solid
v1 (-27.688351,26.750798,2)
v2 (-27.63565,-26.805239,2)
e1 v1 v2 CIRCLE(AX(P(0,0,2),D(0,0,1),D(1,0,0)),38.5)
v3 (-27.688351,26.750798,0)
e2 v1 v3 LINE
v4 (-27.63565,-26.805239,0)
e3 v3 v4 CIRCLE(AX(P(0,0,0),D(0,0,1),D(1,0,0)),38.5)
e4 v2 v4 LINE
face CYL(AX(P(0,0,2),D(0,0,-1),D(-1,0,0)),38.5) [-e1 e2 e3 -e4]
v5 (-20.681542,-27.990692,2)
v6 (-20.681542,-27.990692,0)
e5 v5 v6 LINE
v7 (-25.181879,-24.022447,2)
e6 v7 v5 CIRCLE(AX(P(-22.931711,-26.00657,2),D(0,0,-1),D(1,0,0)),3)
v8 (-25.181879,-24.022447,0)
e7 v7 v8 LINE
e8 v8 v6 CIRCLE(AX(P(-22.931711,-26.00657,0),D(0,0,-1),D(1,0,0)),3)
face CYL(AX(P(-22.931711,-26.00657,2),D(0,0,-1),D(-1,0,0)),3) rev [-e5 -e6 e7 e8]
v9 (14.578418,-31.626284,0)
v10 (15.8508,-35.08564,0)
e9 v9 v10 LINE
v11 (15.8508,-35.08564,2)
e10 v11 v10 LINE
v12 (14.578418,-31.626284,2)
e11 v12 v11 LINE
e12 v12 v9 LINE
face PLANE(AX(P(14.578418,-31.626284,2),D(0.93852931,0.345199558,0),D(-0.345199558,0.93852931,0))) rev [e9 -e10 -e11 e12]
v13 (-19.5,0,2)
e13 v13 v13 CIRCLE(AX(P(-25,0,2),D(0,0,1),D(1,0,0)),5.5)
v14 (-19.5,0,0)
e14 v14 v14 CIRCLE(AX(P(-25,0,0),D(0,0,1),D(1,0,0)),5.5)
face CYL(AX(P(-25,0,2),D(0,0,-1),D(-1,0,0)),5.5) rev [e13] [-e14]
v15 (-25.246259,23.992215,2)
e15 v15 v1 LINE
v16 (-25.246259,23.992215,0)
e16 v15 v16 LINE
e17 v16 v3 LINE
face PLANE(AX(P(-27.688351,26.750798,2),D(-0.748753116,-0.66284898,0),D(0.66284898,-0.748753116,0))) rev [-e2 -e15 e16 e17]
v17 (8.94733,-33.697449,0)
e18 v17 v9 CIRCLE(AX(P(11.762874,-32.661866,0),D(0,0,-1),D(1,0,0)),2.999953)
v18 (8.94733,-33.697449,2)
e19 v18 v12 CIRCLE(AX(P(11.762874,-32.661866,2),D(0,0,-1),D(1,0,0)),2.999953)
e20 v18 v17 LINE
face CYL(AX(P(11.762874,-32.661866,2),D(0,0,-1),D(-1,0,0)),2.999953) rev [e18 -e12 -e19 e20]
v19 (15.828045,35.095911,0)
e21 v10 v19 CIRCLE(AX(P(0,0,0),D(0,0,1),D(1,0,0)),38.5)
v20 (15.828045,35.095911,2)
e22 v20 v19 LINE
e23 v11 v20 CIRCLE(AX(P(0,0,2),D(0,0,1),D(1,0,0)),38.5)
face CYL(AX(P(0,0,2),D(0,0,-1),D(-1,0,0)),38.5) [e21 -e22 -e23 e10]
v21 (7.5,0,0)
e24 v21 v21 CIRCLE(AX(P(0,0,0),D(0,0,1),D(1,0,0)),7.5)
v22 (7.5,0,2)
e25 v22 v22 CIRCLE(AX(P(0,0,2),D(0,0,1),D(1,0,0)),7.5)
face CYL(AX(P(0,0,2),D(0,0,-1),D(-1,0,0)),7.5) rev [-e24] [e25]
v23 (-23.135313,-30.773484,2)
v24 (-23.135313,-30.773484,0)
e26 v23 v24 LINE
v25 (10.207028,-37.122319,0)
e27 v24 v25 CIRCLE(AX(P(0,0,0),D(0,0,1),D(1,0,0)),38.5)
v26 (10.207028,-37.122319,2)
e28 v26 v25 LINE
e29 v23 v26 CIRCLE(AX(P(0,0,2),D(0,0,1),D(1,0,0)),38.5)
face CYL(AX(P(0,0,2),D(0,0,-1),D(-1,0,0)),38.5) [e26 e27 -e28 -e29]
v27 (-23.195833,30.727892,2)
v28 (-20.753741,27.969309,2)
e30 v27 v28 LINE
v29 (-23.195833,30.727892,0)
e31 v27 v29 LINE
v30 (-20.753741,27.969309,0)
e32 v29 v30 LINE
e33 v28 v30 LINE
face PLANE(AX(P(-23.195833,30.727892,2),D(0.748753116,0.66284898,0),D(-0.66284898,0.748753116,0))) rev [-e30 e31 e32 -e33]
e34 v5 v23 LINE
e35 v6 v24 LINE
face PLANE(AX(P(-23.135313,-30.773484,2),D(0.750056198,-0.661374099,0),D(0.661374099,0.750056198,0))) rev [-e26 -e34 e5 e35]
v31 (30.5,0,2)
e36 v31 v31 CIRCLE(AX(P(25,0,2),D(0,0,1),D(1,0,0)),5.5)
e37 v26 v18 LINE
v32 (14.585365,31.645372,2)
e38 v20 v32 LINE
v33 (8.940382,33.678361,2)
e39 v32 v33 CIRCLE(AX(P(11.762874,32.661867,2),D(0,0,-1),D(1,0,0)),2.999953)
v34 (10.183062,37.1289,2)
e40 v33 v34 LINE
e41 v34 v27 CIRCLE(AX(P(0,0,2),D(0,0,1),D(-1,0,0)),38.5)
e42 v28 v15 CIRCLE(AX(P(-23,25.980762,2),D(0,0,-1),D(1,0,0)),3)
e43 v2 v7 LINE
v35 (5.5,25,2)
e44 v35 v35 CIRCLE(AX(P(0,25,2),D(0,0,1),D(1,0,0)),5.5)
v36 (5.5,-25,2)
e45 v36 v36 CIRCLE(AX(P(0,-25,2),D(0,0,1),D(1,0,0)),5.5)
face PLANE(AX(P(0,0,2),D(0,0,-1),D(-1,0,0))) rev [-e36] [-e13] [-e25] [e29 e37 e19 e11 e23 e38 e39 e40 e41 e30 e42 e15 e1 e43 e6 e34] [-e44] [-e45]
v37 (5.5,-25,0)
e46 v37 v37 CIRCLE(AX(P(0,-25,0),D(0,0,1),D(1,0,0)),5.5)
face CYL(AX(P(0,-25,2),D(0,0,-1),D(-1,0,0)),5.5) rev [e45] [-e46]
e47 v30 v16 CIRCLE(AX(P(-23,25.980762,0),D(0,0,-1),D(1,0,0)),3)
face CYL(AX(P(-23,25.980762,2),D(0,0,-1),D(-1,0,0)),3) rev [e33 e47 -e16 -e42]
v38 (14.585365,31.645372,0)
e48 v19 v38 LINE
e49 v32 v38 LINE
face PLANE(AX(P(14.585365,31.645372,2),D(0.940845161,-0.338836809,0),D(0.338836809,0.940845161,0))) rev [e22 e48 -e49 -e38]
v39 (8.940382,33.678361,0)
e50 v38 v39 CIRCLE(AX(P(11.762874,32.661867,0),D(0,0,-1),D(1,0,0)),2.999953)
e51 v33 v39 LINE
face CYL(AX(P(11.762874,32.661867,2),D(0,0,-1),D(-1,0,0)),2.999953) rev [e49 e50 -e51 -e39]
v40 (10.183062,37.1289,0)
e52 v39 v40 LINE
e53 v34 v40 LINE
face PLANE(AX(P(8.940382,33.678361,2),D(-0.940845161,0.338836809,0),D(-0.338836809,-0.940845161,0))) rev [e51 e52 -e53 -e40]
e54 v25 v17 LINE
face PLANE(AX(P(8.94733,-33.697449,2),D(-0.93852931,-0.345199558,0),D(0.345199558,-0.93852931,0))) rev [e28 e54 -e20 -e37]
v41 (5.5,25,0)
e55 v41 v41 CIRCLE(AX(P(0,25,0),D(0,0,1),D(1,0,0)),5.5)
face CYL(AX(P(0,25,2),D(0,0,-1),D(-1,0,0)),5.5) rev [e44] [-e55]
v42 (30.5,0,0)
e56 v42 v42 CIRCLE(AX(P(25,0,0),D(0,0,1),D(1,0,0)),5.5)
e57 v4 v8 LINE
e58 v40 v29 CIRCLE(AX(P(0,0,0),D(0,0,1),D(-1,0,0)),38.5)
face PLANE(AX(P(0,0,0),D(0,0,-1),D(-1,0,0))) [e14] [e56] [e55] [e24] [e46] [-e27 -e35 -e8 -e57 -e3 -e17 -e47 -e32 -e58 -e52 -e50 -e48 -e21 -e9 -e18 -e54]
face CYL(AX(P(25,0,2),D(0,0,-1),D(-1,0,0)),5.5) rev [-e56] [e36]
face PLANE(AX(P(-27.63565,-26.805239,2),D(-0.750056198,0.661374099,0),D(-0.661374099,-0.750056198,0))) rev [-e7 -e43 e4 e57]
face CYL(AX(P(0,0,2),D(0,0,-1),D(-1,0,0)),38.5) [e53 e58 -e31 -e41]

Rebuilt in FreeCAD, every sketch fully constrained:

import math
import FreeCAD as App
import Part
import Sketcher
Q = App.Units.Quantity

doc = App.newDocument("Part")
body = doc.addObject("PartDesign::Body", "Body")

# Sketch on XY plane
sketch1 = body.newObject("Sketcher::SketchObject", "Sketch")
sketch1.AttachmentSupport = (doc.getObject("XY_Plane"), [""])
sketch1.MapMode = "FlatFace"
sketch1.addGeometry([
    Part.LineSegment(App.Vector(10.2, -37.1, 0), App.Vector(8.9, -33.7, 0)),  # 0
    Part.ArcOfCircle(Part.Circle(App.Vector(11.8, -32.7, 0), App.Vector(0, 0, 1), 3), math.radians(20), math.radians(200)),  # 1
    Part.LineSegment(App.Vector(14.6, -31.6, 0), App.Vector(15.9, -35.1, 0)),  # 2
    Part.ArcOfCircle(Part.Circle(App.Vector(0, 0, 0), App.Vector(0, 0, 1), 38.5), math.radians(-66), math.radians(66)),  # 3
    Part.LineSegment(App.Vector(15.8, 35.1, 0), App.Vector(14.6, 31.6, 0)),  # 4
    Part.ArcOfCircle(Part.Circle(App.Vector(11.8, 32.7, 0), App.Vector(0, 0, 1), 3), math.radians(160), math.radians(340)),  # 5
    Part.LineSegment(App.Vector(8.9, 33.7, 0), App.Vector(10.2, 37.1, 0)),  # 6
    Part.ArcOfCircle(Part.Circle(App.Vector(0, 0, 0), App.Vector(0, 0, 1), 38.5), math.radians(75), math.radians(127)),  # 7
    Part.LineSegment(App.Vector(-23.2, 30.7, 0), App.Vector(-20.8, 28, 0)),  # 8
    Part.ArcOfCircle(Part.Circle(App.Vector(-23, 26, 0), App.Vector(0, 0, 1), 3), math.radians(-138), math.radians(42)),  # 9
    Part.LineSegment(App.Vector(-25.2, 24, 0), App.Vector(-27.7, 26.8, 0)),  # 10
    Part.ArcOfCircle(Part.Circle(App.Vector(0, 0, 0), App.Vector(0, 0, 1), 38.5), math.radians(136), math.radians(224)),  # 11
    Part.LineSegment(App.Vector(-27.6, -26.8, 0), App.Vector(-25.2, -24, 0)),  # 12
    Part.ArcOfCircle(Part.Circle(App.Vector(-22.9, -26, 0), App.Vector(0, 0, 1), 3), math.radians(-41), math.radians(139)),  # 13
    Part.LineSegment(App.Vector(-20.7, -28, 0), App.Vector(-23.1, -30.8, 0)),  # 14
    Part.ArcOfCircle(Part.Circle(App.Vector(0, 0, 0), App.Vector(0, 0, 1), 38.5), math.radians(-127), math.radians(-75)),  # 15
    Part.Circle(App.Vector(0, -25, 0), App.Vector(0, 0, 1), 5.5),  # 16
    Part.Circle(App.Vector(25, 0, 0), App.Vector(0, 0, 1), 5.5),  # 17
    Part.Circle(App.Vector(0, 0, 0), App.Vector(0, 0, 1), 7.5),  # 18
    Part.Circle(App.Vector(-25, 0, 0), App.Vector(0, 0, 1), 5.5),  # 19
    Part.Circle(App.Vector(0, 25, 0), App.Vector(0, 0, 1), 5.5),  # 20
], False)
sketch1.addConstraint([
    Sketcher.Constraint("Tangent", 0, 2, 1, 2),
    Sketcher.Constraint("Tangent", 1, 1, 2, 1),
    Sketcher.Constraint("Coincident", 2, 2, 3, 1),
    Sketcher.Constraint("Coincident", 3, 2, 4, 1),
    Sketcher.Constraint("Tangent", 4, 2, 5, 2),
    Sketcher.Constraint("Tangent", 5, 1, 6, 1),
    Sketcher.Constraint("Coincident", 6, 2, 7, 1),
    Sketcher.Constraint("Coincident", 7, 2, 8, 1),
    Sketcher.Constraint("Tangent", 8, 2, 9, 2),
    Sketcher.Constraint("Tangent", 9, 1, 10, 1),
    Sketcher.Constraint("Coincident", 10, 2, 11, 1),
    Sketcher.Constraint("Coincident", 11, 2, 12, 1),
    Sketcher.Constraint("Tangent", 12, 2, 13, 2),
    Sketcher.Constraint("Tangent", 13, 1, 14, 1),
    Sketcher.Constraint("Coincident", 14, 2, 15, 1),
    Sketcher.Constraint("Coincident", 15, 2, 0, 1),
    Sketcher.Constraint("Coincident", 3, 3, -1, 1),
    Sketcher.Constraint("Coincident", 7, 3, -1, 1),
    Sketcher.Constraint("Coincident", 11, 3, -1, 1),
    Sketcher.Constraint("Coincident", 15, 3, -1, 1),
    Sketcher.Constraint("Coincident", 18, 3, -1, 1),
    Sketcher.Constraint("Equal", 1, 5),
    Sketcher.Constraint("Equal", 3, 7),
    Sketcher.Constraint("Equal", 7, 11),
    Sketcher.Constraint("Equal", 9, 13),
    Sketcher.Constraint("Equal", 11, 15),
    Sketcher.Constraint("Equal", 16, 17),
    Sketcher.Constraint("Equal", 17, 19),
    Sketcher.Constraint("Equal", 19, 20),
    Sketcher.Constraint("Symmetric", 17, 3, 19, 3, -1, 1),
    Sketcher.Constraint("Symmetric", 16, 3, 20, 3, -1, 1),
    Sketcher.Constraint("Symmetric", 1, 3, 5, 3, -1),
    Sketcher.Constraint("PointOnObject", 16, 3, -2),
    Sketcher.Constraint("PointOnObject", 17, 3, -1),
    Sketcher.Constraint("Parallel", 0, 2),
    Sketcher.Constraint("Parallel", 4, 6),
    Sketcher.Constraint("Parallel", 8, 10),
    Sketcher.Constraint("Parallel", 12, 14),
    Sketcher.Constraint("Equal", 4, 6),
    Sketcher.Constraint("Equal", 8, 10),
    Sketcher.Constraint("Equal", 12, 14),
    Sketcher.Constraint("Diameter", 16, Q("11 mm")),
    Sketcher.Constraint("Diameter", 18, Q("15 mm")),
    Sketcher.Constraint("Radius", 9, Q("3 mm")),
    Sketcher.Constraint("Radius", 3, Q("38.5 mm")),
    Sketcher.Constraint("DistanceX", 9, 3, -1, 1, Q("23 mm")),
    Sketcher.Constraint("DistanceY", 16, 3, -1, 1, Q("25 mm")),
    Sketcher.Constraint("DistanceX", -1, 1, 17, 3, Q("25 mm")),
    Sketcher.Constraint("Radius", 1, Q("2.999953 mm")),
    Sketcher.Constraint("DistanceX", -1, 1, 2, 2, Q("15.8508 mm")),
    Sketcher.Constraint("DistanceY", -1, 1, 6, 2, Q("37.1289 mm")),
    Sketcher.Constraint("DistanceY", -1, 1, 10, 2, Q("26.750798 mm")),
    Sketcher.Constraint("DistanceY", 9, 3, 5, 1, Q("7.697599 mm")),
    Sketcher.Constraint("Distance", 12, Q("3.710111 mm")),
    Sketcher.Constraint("DistanceX", 13, 3, -1, 1, Q("22.931711 mm")),
])
pad1 = body.newObject("PartDesign::Pad", "Pad")
pad1.Profile = sketch1
pad1.Length = 2

doc.recompute()
